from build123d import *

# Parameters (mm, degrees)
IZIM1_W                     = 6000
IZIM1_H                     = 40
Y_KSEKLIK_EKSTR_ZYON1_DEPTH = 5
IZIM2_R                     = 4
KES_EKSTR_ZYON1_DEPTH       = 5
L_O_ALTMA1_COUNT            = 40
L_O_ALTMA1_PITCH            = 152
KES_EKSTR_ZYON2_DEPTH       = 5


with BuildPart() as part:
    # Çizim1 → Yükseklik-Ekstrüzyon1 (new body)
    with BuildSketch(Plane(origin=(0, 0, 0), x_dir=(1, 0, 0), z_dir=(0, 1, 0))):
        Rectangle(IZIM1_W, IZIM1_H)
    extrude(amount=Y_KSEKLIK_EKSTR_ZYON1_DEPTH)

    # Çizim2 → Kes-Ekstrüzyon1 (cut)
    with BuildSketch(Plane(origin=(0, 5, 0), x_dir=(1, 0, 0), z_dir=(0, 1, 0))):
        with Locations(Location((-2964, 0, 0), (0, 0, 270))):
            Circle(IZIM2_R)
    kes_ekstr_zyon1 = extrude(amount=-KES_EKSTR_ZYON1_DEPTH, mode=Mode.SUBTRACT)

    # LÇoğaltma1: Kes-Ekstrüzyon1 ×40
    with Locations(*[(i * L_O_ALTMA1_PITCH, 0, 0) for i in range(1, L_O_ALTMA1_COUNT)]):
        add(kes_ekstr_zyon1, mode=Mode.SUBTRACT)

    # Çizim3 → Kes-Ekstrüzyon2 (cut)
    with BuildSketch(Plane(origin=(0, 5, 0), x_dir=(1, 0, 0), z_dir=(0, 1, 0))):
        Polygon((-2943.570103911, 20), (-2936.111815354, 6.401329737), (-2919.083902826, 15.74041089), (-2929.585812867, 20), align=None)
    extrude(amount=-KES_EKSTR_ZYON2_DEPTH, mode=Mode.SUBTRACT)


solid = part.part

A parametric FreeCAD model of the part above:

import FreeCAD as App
import Part
import Sketcher

V = App.Vector
Q = App.Units.Quantity


def add_polygon(sketch, points):
    """Adds a closed chain of lines whose ends are joined by coincident constraints."""
    first, n = sketch.GeometryCount, len(points)
    for a, b in zip(points, points[1:] + points[:1]):
        sketch.addGeometry(Part.LineSegment(App.Vector(*a, 0), App.Vector(*b, 0)), False)
    for i in range(n):
        sketch.addConstraint(Sketcher.Constraint("Coincident", first + i, 2, first + (i + 1) % n, 1))

doc = App.newDocument("Part")
params = doc.addObject("Spreadsheet::Sheet", "Params")
for row, (alias, value) in enumerate([
    ("sketch1_width", "6000 mm"),
    ("sketch1_height", "40 mm"),
    ("pad1_length", "5 mm"),
    ("sketch2_diameter", "8 mm"),
    ("pocket1_length", "5 mm"),
    ("linearpattern_pitch", "152 mm"),
    ("pocket2_length", "5 mm"),
], start=1):
    params.set(f"A{row}", alias)
    params.set(f"B{row}", "=" + value)
    params.setAlias(f"B{row}", alias)

body = doc.addObject("PartDesign::Body", "Body")

# Sketch on XZ plane
sketch1 = body.newObject("Sketcher::SketchObject", "Sketch")
sketch1.AttachmentSupport = (doc.getObject("XZ_Plane"), [""])
sketch1.MapMode = "FlatFace"
add_polygon(sketch1, [(-3000, -20), (-3000, 20), (3000, 20), (3000, -20)])  # lines 0-3
sketch1.addConstraint(Sketcher.Constraint("Vertical", 0))
sketch1.addConstraint(Sketcher.Constraint("Horizontal", 1))
sketch1.addConstraint(Sketcher.Constraint("Vertical", 2))
sketch1.addConstraint(Sketcher.Constraint("Horizontal", 3))
sketch1.addConstraint(Sketcher.Constraint("Symmetric", 0, 2, 2, 2, -1, 1))
sketch1.addConstraint(Sketcher.Constraint("DistanceX", 1, 1, 1, 2, Q("6000 mm")))
sketch1.addConstraint(Sketcher.Constraint("DistanceY", 0, 1, 0, 2, Q("40 mm")))
sketch1.setExpression("Constraints[9]", "Params.sketch1_width")
sketch1.setExpression("Constraints[10]", "Params.sketch1_height")
pad1 = body.newObject("PartDesign::Pad", "Pad")
pad1.Profile = sketch1
pad1.setExpression("Length", "Params.pad1_length")
pad1.Reversed = True

# Sketch on XZ plane
sketch2 = body.newObject("Sketcher::SketchObject", "Sketch001")
sketch2.AttachmentSupport = (doc.getObject("XZ_Plane"), [""])
sketch2.MapMode = "FlatFace"
sketch2.AttachmentOffset = App.Placement(V(0, 0, -5), App.Rotation())
sketch2.addGeometry(Part.Circle(V(-2964, 0, 0), V(0, 0, 1), 4), False)
sketch2.addConstraint(Sketcher.Constraint("PointOnObject", 0, 3, -1))
sketch2.addConstraint(Sketcher.Constraint("Diameter", 0, Q("8 mm")))
sketch2.addConstraint(Sketcher.Constraint("DistanceX", 0, 3, -1, 1, Q("2964 mm")))
sketch2.setExpression("Constraints[1]", "Params.sketch2_diameter")
pocket1 = body.newObject("PartDesign::Pocket", "Pocket")
pocket1.Profile = sketch2
pocket1.setExpression("Length", "Params.pocket1_length")
pocket1.Reversed = True
doc.recompute()

linearpattern = body.newObject("PartDesign::LinearPattern", "LinearPattern")
linearpattern.Originals = [pocket1]
linearpattern.Direction = (doc.getObject("X_Axis"), [""])
linearpattern.Mode = "offset"
linearpattern.setExpression("Offset", "Params.linearpattern_pitch")
linearpattern.Occurrences = 40
body.Tip = linearpattern

# Sketch on XZ plane
sketch3 = body.newObject("Sketcher::SketchObject", "Sketch002")
sketch3.AttachmentSupport = (doc.getObject("XZ_Plane"), [""])
sketch3.MapMode = "FlatFace"
sketch3.AttachmentOffset = App.Placement(V(0, 0, -5), App.Rotation())
add_polygon(sketch3, [(-2944, -20), (-2936, -6), (-2919, -16), (-2930, -20)])  # lines 0-3
sketch3.addConstraint(Sketcher.Constraint("Horizontal", 3))
sketch3.addConstraint(Sketcher.Constraint("Perpendicular", 0, 1))
sketch3.addConstraint(Sketcher.Constraint("DistanceY", 2, 2, -1, 1, Q("20 mm")))
sketch3.addConstraint(Sketcher.Constraint("DistanceX", 3, 2, 3, 1, Q("13.984291 mm")))
sketch3.addConstraint(Sketcher.Constraint("DistanceX", 3, 2, 1, 2, Q("24.486201 mm")))
sketch3.addConstraint(Sketcher.Constraint("Distance", 0, Q("15.509671 mm")))
sketch3.addConstraint(Sketcher.Constraint("Distance", 1, Q("19.42082 mm")))
sketch3.addConstraint(Sketcher.Constraint("DistanceX", 0, 2, -1, 1, Q("2936.111815 mm")))
pocket2 = body.newObject("PartDesign::Pocket", "Pocket001")
pocket2.Profile = sketch3
pocket2.setExpression("Length", "Params.pocket2_length")
pocket2.Reversed = True

doc.recompute()
